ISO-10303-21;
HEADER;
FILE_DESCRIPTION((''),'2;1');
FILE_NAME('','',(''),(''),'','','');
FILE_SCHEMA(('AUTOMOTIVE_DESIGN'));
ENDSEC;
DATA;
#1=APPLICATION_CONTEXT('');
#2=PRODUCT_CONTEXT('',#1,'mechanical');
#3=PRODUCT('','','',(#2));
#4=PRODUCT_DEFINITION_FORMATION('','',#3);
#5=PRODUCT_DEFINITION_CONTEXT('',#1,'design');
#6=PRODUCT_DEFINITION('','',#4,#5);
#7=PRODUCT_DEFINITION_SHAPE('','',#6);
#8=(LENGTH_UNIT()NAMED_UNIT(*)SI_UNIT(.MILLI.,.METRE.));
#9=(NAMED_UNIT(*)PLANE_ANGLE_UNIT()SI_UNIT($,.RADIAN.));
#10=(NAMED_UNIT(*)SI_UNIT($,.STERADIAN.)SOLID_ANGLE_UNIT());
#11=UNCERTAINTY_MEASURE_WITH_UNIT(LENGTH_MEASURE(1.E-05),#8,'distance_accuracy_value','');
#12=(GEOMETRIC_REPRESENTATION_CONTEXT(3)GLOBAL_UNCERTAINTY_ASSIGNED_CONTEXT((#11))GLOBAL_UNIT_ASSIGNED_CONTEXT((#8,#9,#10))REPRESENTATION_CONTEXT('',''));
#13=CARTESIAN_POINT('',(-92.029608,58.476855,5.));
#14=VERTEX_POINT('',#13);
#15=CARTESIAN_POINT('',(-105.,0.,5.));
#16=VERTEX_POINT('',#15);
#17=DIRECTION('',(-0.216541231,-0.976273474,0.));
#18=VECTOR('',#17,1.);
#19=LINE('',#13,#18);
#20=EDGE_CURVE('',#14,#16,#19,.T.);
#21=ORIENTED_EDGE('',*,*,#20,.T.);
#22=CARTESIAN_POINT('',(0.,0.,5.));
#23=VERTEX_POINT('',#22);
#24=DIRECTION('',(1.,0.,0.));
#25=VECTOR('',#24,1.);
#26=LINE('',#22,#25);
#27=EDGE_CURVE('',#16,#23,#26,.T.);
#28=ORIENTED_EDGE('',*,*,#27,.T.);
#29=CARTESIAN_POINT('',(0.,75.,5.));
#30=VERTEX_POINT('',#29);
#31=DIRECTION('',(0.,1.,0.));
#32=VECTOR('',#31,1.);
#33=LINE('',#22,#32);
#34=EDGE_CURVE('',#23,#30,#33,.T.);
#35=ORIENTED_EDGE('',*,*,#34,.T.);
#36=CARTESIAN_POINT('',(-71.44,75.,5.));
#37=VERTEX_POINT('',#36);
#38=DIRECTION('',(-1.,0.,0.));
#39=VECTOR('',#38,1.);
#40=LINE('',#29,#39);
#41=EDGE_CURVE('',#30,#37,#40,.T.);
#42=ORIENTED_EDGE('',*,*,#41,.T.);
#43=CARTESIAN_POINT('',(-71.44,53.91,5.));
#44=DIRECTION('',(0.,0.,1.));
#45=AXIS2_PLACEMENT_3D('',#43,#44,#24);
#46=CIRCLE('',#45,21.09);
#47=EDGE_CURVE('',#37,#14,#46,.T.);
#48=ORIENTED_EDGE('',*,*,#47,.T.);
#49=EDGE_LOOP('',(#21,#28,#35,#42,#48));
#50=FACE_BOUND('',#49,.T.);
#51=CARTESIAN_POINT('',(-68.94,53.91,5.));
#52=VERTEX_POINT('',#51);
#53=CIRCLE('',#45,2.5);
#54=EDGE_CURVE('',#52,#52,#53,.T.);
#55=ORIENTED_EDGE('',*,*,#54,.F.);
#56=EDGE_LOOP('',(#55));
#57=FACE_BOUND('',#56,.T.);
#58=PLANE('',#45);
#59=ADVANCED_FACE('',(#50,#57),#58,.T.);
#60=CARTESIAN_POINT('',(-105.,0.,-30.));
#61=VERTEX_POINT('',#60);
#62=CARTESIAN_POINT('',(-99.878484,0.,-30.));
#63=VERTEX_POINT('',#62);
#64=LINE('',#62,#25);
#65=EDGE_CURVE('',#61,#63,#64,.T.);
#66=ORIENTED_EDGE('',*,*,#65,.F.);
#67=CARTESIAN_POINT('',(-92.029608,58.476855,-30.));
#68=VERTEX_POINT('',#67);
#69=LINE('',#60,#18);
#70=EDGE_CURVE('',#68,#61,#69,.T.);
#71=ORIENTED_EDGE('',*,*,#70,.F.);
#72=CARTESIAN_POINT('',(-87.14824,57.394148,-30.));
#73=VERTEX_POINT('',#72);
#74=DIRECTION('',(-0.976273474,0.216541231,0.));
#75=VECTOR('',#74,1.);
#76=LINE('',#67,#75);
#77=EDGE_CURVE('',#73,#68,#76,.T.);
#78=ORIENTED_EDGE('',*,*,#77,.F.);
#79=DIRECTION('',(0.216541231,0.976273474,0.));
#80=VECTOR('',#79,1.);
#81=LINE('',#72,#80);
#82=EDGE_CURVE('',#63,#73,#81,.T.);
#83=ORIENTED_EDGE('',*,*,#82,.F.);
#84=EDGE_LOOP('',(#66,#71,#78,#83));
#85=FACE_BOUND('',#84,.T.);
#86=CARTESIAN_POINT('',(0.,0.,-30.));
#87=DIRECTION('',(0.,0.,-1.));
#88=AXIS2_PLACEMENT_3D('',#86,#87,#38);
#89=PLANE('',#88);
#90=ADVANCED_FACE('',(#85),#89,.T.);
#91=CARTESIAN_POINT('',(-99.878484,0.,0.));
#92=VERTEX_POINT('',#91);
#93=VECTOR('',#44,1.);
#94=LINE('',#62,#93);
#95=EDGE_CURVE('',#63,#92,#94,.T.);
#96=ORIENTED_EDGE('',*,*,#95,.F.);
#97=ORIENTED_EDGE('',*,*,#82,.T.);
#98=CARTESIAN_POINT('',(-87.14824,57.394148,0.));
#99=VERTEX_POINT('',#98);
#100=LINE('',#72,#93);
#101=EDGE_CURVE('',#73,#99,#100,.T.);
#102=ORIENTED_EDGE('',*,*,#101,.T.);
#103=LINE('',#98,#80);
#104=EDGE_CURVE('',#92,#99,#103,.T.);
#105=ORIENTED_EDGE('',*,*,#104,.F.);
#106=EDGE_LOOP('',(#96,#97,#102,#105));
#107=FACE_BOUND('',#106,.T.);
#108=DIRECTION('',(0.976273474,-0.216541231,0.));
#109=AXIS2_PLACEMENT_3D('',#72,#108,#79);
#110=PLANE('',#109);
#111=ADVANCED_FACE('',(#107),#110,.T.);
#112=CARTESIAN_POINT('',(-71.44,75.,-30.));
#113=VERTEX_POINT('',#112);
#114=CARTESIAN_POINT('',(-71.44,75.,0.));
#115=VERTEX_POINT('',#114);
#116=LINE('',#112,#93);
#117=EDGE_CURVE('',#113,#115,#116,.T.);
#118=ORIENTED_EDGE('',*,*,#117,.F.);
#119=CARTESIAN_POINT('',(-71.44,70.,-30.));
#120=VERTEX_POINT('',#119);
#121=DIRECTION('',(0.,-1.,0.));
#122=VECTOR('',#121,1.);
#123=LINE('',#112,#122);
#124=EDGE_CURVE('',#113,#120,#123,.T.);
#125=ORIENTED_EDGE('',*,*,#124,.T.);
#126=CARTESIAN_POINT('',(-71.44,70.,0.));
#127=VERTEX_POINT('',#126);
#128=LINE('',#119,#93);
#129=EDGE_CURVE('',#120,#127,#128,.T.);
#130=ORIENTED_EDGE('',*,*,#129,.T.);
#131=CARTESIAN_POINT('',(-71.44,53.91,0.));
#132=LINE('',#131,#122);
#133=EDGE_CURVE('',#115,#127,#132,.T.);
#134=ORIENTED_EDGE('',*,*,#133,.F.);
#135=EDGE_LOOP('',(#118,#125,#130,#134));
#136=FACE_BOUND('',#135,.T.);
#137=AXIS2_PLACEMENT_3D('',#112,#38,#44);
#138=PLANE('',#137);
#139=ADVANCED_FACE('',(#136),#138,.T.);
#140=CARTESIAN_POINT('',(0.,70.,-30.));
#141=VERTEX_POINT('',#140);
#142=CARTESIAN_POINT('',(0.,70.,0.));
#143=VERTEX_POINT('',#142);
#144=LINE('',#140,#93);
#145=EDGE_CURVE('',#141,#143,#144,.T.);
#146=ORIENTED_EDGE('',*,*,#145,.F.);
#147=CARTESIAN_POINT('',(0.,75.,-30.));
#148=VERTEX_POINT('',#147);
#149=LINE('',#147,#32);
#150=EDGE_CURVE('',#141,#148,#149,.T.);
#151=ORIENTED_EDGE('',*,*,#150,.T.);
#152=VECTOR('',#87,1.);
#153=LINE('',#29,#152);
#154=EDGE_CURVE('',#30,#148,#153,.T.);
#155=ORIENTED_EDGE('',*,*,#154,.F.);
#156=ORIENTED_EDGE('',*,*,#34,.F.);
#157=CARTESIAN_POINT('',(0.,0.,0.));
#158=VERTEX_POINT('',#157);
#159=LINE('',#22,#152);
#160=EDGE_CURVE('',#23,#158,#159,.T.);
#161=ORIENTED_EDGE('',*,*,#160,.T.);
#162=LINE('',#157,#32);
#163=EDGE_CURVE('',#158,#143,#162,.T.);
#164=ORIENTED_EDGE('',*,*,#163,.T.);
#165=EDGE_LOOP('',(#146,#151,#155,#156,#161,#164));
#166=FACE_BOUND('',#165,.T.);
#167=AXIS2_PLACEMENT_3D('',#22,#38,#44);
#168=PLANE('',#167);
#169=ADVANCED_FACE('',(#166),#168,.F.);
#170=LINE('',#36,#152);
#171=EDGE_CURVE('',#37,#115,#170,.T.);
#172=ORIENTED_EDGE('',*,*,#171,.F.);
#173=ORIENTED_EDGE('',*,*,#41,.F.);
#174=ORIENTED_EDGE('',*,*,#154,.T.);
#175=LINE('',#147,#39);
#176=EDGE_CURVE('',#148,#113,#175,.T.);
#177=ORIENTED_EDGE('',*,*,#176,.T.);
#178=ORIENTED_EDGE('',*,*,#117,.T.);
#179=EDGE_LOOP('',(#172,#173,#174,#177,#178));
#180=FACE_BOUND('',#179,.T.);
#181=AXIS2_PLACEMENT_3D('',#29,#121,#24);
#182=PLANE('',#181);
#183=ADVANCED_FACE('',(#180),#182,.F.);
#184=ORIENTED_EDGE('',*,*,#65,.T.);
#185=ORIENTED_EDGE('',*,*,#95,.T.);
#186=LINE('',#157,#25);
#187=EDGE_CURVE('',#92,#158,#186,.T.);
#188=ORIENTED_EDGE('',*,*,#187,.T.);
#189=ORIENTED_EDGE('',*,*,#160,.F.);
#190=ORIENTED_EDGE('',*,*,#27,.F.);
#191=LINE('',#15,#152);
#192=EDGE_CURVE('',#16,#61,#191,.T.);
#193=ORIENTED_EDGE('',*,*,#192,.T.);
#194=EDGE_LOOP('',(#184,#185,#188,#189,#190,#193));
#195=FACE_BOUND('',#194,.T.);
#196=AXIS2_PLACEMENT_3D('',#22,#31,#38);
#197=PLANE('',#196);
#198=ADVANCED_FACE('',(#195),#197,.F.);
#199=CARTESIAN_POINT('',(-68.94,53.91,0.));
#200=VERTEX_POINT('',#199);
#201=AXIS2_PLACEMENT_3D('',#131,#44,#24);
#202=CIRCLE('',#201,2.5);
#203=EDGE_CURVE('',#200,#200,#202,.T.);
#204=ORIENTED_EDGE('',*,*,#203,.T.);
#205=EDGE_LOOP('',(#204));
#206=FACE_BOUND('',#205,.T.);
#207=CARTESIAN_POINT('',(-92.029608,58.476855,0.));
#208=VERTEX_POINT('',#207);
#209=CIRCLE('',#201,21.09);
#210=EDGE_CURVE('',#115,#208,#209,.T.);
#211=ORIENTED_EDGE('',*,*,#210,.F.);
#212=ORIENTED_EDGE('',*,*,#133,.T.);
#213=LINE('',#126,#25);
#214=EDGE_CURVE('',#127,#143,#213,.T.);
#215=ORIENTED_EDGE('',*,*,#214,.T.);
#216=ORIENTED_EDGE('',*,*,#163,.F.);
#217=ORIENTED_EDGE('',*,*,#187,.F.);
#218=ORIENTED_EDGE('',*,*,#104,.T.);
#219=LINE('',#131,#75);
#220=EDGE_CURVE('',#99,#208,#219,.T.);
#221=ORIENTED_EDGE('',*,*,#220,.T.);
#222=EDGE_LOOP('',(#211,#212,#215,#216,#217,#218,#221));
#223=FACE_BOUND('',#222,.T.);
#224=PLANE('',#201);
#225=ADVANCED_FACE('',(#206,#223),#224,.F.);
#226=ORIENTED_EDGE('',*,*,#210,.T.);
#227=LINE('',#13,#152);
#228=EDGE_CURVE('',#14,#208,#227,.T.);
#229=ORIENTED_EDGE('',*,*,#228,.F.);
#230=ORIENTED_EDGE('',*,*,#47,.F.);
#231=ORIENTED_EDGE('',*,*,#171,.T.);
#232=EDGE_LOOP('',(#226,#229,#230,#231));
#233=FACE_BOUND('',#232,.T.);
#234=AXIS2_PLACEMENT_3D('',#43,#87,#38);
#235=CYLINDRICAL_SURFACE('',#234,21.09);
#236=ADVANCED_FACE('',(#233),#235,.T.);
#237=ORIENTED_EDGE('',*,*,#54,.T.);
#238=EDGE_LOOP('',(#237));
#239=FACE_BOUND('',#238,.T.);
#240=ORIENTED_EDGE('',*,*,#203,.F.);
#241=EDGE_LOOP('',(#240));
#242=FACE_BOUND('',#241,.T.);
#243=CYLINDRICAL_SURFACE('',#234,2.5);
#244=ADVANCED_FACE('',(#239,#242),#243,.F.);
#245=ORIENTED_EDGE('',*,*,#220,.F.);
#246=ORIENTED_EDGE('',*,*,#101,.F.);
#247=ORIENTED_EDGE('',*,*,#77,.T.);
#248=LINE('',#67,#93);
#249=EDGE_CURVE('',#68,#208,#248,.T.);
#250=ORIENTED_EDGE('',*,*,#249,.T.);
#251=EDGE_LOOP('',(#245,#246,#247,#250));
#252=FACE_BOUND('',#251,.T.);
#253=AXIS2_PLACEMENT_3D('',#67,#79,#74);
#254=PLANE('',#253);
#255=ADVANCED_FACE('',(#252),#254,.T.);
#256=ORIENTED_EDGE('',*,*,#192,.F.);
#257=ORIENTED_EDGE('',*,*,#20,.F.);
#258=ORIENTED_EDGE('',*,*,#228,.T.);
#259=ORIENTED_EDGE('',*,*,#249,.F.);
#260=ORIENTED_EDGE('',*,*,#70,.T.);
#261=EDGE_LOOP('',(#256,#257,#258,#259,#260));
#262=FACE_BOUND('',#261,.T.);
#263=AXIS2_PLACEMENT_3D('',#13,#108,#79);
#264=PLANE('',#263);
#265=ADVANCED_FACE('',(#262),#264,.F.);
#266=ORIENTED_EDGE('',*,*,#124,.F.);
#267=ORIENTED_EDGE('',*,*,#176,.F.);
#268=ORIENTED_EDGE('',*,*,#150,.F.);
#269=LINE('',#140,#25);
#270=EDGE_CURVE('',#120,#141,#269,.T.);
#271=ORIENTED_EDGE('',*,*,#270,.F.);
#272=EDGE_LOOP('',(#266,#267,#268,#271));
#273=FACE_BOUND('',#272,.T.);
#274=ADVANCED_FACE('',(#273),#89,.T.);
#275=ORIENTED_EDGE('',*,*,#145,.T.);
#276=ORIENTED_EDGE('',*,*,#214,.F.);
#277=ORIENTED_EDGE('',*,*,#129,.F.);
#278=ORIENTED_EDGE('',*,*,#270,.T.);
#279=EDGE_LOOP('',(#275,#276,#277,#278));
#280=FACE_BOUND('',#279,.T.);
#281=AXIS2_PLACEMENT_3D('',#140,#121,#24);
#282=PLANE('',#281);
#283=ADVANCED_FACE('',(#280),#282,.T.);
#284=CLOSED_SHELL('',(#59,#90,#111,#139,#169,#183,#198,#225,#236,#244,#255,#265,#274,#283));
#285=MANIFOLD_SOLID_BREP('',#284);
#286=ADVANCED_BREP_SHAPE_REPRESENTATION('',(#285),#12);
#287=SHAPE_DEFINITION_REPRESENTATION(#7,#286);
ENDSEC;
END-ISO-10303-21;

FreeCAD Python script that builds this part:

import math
import FreeCAD as App
import Part
import Sketcher
Q = App.Units.Quantity

doc = App.newDocument("Part")
body = doc.addObject("PartDesign::Body", "Body")

# Sketch on XY plane
sketch1 = body.newObject("Sketcher::SketchObject", "Sketch")
sketch1.AttachmentSupport = (doc.getObject("XY_Plane"), [""])
sketch1.MapMode = "FlatFace"
sketch1.addGeometry([
    Part.LineSegment(App.Vector(-92, 58.5, 0), App.Vector(-105, 0, 0)),  # 0
    Part.LineSegment(App.Vector(-105, 0, 0), App.Vector(0, 0, 0)),  # 1
    Part.LineSegment(App.Vector(0, 0, 0), App.Vector(0, 75, 0)),  # 2
    Part.LineSegment(App.Vector(0, 75, 0), App.Vector(-71.4, 75, 0)),  # 3
    Part.ArcOfCircle(Part.Circle(App.Vector(-71.4, 53.9, 0), App.Vector(0, 0, 1), 21.1), math.radians(90), math.radians(167)),  # 4
    Part.Circle(App.Vector(-71.4, 53.9, 0), App.Vector(0, 0, 1), 2.5),  # 5
], False)
sketch1.addConstraint([
    Sketcher.Constraint("Coincident", 0, 2, 1, 1),
    Sketcher.Constraint("Coincident", 1, 2, 2, 1),
    Sketcher.Constraint("Coincident", 2, 2, 3, 1),
    Sketcher.Constraint("Tangent", 3, 2, 4, 1),
    Sketcher.Constraint("Tangent", 4, 2, 0, 1),
    Sketcher.Constraint("Horizontal", 1),
    Sketcher.Constraint("Vertical", 2),
    Sketcher.Constraint("Horizontal", 3),
    Sketcher.Constraint("Coincident", 1, 2, -1, 1),
    Sketcher.Constraint("Coincident", 5, 3, 4, 3),
    Sketcher.Constraint("Diameter", 5, Q("5 mm")),
    Sketcher.Constraint("DistanceX", 1, 1, 1, 2, Q("105 mm")),
    Sketcher.Constraint("DistanceY", 2, 1, 2, 2, Q("75 mm")),
    Sketcher.Constraint("Radius", 4, Q("21.09 mm")),
    Sketcher.Constraint("DistanceX", 3, 2, 3, 1, Q("71.44 mm")),
])
pad1 = body.newObject("PartDesign::Pad", "Pad")
pad1.Profile = sketch1
pad1.Length = 5

# Sketch on XY plane
sketch2 = body.newObject("Sketcher::SketchObject", "Sketch001")
sketch2.AttachmentSupport = (doc.getObject("XY_Plane"), [""])
sketch2.MapMode = "FlatFace"
sketch2.AttachmentOffset = App.Placement(App.Vector(0, 0, 5), App.Rotation())
sketch2.addGeometry([
    Part.LineSegment(App.Vector(-92.029608, 58.476855, 0), App.Vector(-105, 0, 0)),  # 0
    Part.LineSegment(App.Vector(-105, 0, 0), App.Vector(-99.878484, 0, 0)),  # 1
    Part.LineSegment(App.Vector(-99.878484, 0, 0), App.Vector(-87.14824, 57.394148, 0)),  # 2
    Part.LineSegment(App.Vector(-87.14824, 57.394148, 0), App.Vector(-92.029608, 58.476855, 0)),  # 3
    Part.LineSegment(App.Vector(-71.44, 75, 0), App.Vector(-71.44, 70, 0)),  # 4
    Part.LineSegment(App.Vector(-71.44, 70, 0), App.Vector(0, 70, 0)),  # 5
    Part.LineSegment(App.Vector(0, 70, 0), App.Vector(0, 75, 0)),  # 6
    Part.LineSegment(App.Vector(0, 75, 0), App.Vector(-71.44, 75, 0)),  # 7
], False)
sketch2.addConstraint([
    Sketcher.Constraint("Coincident", 0, 2, 1, 1),
    Sketcher.Constraint("Coincident", 1, 2, 2, 1),
    Sketcher.Constraint("Coincident", 2, 2, 3, 1),
    Sketcher.Constraint("Coincident", 3, 2, 0, 1),
    Sketcher.Constraint("Coincident", 4, 2, 5, 1),
    Sketcher.Constraint("Coincident", 5, 2, 6, 1),
    Sketcher.Constraint("Coincident", 6, 2, 7, 1),
    Sketcher.Constraint("Coincident", 7, 2, 4, 1),
    Sketcher.Constraint("Horizontal", 1),
    Sketcher.Constraint("Vertical", 4),
    Sketcher.Constraint("Horizontal", 5),
    Sketcher.Constraint("Vertical", 6),
    Sketcher.Constraint("Horizontal", 7),
    Sketcher.Constraint("PointOnObject", 0, 2, -1),
    Sketcher.Constraint("PointOnObject", 5, 2, -2),
    Sketcher.Constraint("DistanceY", 4, 2, 4, 1, Q("5 mm")),
    Sketcher.Constraint("Distance", 3, Q("5 mm")),
    Sketcher.Constraint("DistanceX", 0, 2, -1, 1, Q("105 mm")),
    Sketcher.Constraint("DistanceY", -1, 1, 4, 2, Q("70 mm")),
    Sketcher.Constraint("DistanceX", 5, 1, 5, 2, Q("71.44 mm")),
    Sketcher.Constraint("DistanceX", 1, 1, 1, 2, Q("5.121516 mm")),
    Sketcher.Constraint("DistanceX", 2, 2, -1, 1, Q("87.14824 mm")),
    Sketcher.Constraint("DistanceY", -1, 1, 2, 2, Q("57.394148 mm")),
    Sketcher.Constraint("Distance", 0, Q("59.898027 mm")),
])
pad2 = body.newObject("PartDesign::Pad", "Pad001")
pad2.Profile = sketch2
pad2.Length = 35
pad2.Reversed = True

doc.recompute()
